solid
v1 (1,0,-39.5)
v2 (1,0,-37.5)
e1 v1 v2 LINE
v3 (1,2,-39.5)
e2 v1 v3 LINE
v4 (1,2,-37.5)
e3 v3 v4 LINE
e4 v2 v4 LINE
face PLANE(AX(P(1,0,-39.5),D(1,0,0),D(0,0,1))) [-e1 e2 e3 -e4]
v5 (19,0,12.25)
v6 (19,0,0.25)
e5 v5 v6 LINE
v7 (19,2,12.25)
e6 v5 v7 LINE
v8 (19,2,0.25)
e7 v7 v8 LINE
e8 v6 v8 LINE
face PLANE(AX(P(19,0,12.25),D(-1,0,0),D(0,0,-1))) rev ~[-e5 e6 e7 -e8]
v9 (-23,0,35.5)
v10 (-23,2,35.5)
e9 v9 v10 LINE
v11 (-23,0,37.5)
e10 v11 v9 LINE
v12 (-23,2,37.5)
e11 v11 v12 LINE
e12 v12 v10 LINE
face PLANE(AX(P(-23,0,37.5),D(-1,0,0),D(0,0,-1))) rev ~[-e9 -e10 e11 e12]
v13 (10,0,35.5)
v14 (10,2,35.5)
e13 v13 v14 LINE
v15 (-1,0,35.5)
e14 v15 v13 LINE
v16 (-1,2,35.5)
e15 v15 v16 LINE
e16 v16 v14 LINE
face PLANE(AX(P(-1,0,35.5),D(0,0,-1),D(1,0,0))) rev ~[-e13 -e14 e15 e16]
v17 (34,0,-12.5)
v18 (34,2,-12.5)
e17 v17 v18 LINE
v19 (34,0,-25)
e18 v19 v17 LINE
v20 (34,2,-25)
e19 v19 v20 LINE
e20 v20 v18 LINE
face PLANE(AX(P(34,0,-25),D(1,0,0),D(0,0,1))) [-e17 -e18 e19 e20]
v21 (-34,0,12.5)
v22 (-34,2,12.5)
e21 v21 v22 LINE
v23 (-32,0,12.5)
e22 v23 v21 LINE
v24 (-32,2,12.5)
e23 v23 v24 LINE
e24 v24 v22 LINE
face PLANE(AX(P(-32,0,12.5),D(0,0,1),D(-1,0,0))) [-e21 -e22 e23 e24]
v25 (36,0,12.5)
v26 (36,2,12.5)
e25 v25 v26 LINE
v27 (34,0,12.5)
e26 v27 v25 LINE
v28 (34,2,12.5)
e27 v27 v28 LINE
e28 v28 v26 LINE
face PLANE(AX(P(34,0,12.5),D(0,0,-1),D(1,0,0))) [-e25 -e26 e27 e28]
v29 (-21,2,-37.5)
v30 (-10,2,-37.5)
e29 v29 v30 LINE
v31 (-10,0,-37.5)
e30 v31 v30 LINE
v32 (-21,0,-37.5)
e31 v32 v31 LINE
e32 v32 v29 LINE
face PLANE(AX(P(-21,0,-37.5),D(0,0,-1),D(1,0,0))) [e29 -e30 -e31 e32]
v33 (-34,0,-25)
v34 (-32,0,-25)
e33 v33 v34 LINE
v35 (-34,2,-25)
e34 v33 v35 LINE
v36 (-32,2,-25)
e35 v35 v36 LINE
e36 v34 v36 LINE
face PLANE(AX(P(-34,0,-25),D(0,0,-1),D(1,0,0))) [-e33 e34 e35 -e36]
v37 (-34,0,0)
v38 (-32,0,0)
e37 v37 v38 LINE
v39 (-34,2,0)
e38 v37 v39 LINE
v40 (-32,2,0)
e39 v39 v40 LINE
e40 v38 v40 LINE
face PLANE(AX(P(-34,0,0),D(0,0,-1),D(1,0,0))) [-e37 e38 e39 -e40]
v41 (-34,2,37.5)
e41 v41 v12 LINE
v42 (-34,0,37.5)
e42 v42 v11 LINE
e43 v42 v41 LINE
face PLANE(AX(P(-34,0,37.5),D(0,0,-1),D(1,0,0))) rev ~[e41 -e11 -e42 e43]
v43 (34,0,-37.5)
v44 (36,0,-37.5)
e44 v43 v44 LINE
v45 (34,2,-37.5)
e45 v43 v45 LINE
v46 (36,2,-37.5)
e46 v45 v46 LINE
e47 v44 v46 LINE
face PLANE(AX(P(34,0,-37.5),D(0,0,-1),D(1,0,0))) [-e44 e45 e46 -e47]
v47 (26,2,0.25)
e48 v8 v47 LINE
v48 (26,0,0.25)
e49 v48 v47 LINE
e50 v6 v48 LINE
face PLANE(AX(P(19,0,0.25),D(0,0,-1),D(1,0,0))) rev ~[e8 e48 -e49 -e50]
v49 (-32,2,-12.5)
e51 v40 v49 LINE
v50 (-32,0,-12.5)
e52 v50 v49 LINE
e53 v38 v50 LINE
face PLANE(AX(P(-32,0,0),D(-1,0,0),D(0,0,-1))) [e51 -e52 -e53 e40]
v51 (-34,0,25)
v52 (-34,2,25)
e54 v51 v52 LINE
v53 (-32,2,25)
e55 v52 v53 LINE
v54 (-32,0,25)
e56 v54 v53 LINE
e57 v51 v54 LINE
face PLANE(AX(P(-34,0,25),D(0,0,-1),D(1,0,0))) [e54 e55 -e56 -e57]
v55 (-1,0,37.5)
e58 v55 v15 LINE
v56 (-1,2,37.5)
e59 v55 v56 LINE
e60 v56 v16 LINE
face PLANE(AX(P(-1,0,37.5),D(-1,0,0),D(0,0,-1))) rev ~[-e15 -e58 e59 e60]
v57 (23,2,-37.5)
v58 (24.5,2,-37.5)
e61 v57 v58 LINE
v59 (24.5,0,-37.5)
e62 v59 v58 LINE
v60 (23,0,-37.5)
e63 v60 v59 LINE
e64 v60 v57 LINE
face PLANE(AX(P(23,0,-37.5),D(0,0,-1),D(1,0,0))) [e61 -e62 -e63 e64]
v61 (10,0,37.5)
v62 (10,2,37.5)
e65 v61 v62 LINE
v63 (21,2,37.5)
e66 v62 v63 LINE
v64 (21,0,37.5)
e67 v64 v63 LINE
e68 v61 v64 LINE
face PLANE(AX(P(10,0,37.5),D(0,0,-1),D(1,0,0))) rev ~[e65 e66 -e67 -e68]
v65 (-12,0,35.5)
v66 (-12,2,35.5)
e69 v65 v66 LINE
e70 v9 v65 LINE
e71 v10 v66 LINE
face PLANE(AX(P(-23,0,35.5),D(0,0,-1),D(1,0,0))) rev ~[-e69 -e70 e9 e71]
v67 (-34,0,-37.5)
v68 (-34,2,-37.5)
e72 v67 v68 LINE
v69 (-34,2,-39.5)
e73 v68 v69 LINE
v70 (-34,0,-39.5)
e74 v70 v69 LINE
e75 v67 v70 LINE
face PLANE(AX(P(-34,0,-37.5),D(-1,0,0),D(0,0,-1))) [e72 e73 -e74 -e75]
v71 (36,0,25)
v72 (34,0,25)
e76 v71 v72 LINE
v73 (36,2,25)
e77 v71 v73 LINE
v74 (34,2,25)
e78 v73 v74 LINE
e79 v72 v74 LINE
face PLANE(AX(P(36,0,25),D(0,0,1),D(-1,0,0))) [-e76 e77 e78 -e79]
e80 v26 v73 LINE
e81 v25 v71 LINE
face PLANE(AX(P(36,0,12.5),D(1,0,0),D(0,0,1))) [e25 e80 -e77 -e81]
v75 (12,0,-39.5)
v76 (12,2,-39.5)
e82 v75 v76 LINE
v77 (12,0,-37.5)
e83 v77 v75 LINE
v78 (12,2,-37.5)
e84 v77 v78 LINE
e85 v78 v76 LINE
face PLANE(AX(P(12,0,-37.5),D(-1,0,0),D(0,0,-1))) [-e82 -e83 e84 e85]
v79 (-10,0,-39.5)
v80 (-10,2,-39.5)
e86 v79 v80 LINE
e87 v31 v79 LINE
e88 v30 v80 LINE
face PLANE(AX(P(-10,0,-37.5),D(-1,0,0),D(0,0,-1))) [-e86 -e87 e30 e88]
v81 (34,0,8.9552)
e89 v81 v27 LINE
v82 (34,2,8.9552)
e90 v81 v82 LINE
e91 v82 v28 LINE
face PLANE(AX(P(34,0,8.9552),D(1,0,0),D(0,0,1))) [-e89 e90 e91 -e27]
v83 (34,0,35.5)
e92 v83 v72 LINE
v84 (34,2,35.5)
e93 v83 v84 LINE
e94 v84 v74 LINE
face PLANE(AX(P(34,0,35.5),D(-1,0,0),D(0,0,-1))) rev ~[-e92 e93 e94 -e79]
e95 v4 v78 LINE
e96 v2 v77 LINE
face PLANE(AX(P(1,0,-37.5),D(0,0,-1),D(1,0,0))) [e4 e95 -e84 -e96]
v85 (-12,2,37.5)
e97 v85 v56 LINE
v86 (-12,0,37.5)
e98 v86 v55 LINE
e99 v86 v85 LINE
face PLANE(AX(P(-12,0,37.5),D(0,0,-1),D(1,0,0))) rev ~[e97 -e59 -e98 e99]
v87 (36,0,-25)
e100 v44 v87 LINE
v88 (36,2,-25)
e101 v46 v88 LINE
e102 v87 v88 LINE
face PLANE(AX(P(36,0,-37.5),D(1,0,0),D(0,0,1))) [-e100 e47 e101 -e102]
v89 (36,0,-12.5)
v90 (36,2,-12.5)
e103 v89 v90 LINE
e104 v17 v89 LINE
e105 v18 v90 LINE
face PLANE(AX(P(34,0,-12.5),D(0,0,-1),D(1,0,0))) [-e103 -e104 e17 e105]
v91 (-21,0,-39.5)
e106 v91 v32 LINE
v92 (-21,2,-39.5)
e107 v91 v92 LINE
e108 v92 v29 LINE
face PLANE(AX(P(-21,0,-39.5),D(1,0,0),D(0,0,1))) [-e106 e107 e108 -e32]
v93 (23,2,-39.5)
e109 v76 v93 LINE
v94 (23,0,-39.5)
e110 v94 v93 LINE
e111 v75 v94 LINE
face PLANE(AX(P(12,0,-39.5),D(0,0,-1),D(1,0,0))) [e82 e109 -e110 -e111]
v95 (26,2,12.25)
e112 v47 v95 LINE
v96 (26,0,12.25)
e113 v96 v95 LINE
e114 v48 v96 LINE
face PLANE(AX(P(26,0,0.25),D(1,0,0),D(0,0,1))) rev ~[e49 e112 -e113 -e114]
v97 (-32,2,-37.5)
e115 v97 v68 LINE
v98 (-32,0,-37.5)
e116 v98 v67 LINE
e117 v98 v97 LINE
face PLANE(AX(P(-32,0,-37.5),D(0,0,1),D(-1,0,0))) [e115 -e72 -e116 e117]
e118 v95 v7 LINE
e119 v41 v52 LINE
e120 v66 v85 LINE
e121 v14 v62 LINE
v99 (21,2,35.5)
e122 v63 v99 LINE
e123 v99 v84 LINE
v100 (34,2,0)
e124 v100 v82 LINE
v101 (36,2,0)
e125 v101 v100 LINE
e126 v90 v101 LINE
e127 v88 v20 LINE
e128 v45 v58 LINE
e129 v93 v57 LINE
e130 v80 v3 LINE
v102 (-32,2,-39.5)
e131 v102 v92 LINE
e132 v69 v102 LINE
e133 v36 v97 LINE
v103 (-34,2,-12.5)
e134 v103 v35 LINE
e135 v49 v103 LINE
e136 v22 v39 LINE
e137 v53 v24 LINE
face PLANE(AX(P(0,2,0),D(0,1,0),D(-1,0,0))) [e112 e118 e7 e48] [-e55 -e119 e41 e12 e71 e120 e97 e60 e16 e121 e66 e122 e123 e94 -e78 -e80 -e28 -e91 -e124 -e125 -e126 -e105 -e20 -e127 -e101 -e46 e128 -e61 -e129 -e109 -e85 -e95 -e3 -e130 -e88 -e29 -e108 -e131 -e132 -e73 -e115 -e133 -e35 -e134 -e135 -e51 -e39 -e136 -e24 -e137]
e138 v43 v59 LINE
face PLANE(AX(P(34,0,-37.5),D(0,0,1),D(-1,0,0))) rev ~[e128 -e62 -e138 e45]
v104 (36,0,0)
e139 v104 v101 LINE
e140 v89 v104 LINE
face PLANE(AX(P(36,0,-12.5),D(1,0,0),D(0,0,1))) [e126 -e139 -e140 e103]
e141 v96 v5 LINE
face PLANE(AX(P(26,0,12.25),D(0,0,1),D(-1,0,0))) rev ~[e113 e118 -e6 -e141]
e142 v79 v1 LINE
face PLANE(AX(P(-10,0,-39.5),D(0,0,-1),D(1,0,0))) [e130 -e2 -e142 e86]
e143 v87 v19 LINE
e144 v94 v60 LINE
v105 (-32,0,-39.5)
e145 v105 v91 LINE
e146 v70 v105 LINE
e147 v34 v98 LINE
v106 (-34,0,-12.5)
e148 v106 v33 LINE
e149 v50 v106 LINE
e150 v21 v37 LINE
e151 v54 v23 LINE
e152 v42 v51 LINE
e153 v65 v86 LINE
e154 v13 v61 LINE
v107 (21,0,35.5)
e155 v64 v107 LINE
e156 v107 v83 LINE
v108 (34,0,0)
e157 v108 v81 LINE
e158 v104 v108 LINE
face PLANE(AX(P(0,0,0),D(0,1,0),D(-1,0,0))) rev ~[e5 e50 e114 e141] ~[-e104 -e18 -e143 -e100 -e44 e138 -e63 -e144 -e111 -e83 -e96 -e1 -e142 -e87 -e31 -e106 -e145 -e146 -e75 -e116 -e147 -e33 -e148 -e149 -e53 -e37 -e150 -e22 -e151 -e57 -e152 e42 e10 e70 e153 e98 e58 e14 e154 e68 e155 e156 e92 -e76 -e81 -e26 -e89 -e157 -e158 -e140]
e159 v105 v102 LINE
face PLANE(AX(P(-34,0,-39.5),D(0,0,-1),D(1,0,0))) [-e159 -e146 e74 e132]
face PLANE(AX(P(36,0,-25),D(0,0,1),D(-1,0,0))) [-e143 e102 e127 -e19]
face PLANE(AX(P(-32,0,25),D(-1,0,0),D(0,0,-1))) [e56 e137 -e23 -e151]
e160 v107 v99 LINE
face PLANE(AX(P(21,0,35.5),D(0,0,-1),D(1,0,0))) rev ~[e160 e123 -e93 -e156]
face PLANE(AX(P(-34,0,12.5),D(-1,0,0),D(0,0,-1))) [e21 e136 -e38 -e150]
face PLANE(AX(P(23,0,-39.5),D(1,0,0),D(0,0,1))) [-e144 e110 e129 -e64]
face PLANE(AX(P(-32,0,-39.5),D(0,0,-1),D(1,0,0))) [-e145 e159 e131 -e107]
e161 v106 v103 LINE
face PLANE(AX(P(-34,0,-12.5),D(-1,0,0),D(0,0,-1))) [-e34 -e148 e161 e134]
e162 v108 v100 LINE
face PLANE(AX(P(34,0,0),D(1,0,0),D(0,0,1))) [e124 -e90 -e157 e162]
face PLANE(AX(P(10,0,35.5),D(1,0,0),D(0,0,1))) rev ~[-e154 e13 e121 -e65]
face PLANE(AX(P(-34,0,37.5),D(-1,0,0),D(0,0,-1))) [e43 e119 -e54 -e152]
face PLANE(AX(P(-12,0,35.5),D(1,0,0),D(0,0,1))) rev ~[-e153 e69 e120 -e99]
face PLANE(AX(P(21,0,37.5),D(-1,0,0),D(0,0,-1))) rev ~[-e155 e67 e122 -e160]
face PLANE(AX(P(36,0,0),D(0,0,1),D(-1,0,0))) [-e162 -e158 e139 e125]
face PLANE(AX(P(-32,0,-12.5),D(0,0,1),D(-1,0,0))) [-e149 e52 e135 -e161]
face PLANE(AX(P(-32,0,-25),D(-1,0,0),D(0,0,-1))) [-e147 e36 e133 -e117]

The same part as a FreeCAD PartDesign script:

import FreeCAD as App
import Part
import Sketcher

V = App.Vector
Q = App.Units.Quantity


def add_polygon(sketch, points):
    """Adds a closed chain of lines whose ends are joined by coincident constraints."""
    first, n = sketch.GeometryCount, len(points)
    for a, b in zip(points, points[1:] + points[:1]):
        sketch.addGeometry(Part.LineSegment(App.Vector(*a, 0), App.Vector(*b, 0)), False)
    for i in range(n):
        sketch.addConstraint(Sketcher.Constraint("Coincident", first + i, 2, first + (i + 1) % n, 1))

doc = App.newDocument("Part")
body = doc.addObject("PartDesign::Body", "Body")

# Sketch on XZ plane
sketch1 = body.newObject("Sketcher::SketchObject", "Sketch")
sketch1.AttachmentSupport = (doc.getObject("XZ_Plane"), [""])
sketch1.MapMode = "FlatFace"
add_polygon(sketch1, [(-34, 25), (-34, 37.5), (-23, 37.5), (-23, 35.5), (-12, 35.5), (-12, 37.5), (-1, 37.5), (-1, 35.5), (10, 35.5), (10, 37.5), (21, 37.5), (21, 35.5), (34, 35.5), (34, 25), (36, 25), (36, 12.5), (34, 12.5), (34, 0), (36, 0), (36, -12.5), (34, -12.5), (34, -25), (36, -25), (36, -37.5), (23, -37.5), (23, -39.5), (12, -39.5), (12, -37.5), (1, -37.5), (1, -39.5), (-10, -39.5), (-10, -37.5), (-21, -37.5), (-21, -39.5), (-34, -39.5), (-34, -37.5), (-32, -37.5), (-32, -25), (-34, -25), (-34, -12.5), (-32, -12.5), (-32, 0), (-34, 0), (-34, 12.5), (-32, 12.5), (-32, 25)])  # lines 0-45
add_polygon(sketch1, [(26, 0.2), (26, 12.2), (19, 12.2), (19, 0.2)])  # lines 46-49
sketch1.addConstraint([
    Sketcher.Constraint("Vertical", 0),
    Sketcher.Constraint("Horizontal", 1),
    Sketcher.Constraint("Vertical", 2),
    Sketcher.Constraint("Horizontal", 3),
    Sketcher.Constraint("Vertical", 4),
    Sketcher.Constraint("Horizontal", 5),
    Sketcher.Constraint("Vertical", 6),
    Sketcher.Constraint("Horizontal", 7),
    Sketcher.Constraint("Vertical", 8),
    Sketcher.Constraint("Horizontal", 9),
    Sketcher.Constraint("Vertical", 10),
    Sketcher.Constraint("Horizontal", 11),
    Sketcher.Constraint("Vertical", 12),
    Sketcher.Constraint("Horizontal", 13),
    Sketcher.Constraint("Vertical", 14),
    Sketcher.Constraint("Horizontal", 15),
    Sketcher.Constraint("Vertical", 16),
    Sketcher.Constraint("Horizontal", 17),
    Sketcher.Constraint("Vertical", 18),
    Sketcher.Constraint("Horizontal", 19),
    Sketcher.Constraint("Vertical", 20),
    Sketcher.Constraint("Horizontal", 21),
    Sketcher.Constraint("Vertical", 22),
    Sketcher.Constraint("Horizontal", 23),
    Sketcher.Constraint("Vertical", 24),
    Sketcher.Constraint("Horizontal", 25),
    Sketcher.Constraint("Vertical", 26),
    Sketcher.Constraint("Horizontal", 27),
    Sketcher.Constraint("Vertical", 28),
    Sketcher.Constraint("Horizontal", 29),
    Sketcher.Constraint("Vertical", 30),
    Sketcher.Constraint("Horizontal", 31),
    Sketcher.Constraint("Vertical", 32),
    Sketcher.Constraint("Horizontal", 33),
    Sketcher.Constraint("Vertical", 34),
    Sketcher.Constraint("Horizontal", 35),
    Sketcher.Constraint("Vertical", 36),
    Sketcher.Constraint("Horizontal", 37),
    Sketcher.Constraint("Vertical", 38),
    Sketcher.Constraint("Horizontal", 39),
    Sketcher.Constraint("Vertical", 40),
    Sketcher.Constraint("Horizontal", 41),
    Sketcher.Constraint("Vertical", 42),
    Sketcher.Constraint("Horizontal", 43),
    Sketcher.Constraint("Vertical", 44),
    Sketcher.Constraint("Horizontal", 45),
    Sketcher.Constraint("Vertical", 46),
    Sketcher.Constraint("Horizontal", 47),
    Sketcher.Constraint("Vertical", 48),
    Sketcher.Constraint("Horizontal", 49),
    Sketcher.Constraint("Symmetric", 1, 2, 23, 2, -1, 1),
    Sketcher.Constraint("Symmetric", 4, 2, 26, 2, -1, 1),
    Sketcher.Constraint("Symmetric", 8, 2, 30, 2, -1, 1),
    Sketcher.Constraint("Symmetric", 12, 2, 37, 2, -1, 1),
    Sketcher.Constraint("Symmetric", 15, 2, 38, 2, -1, 1),
    Sketcher.Constraint("Symmetric", 16, 2, 41, 2, -1, 1),
    Sketcher.Constraint("Symmetric", 19, 2, 42, 2, -1, 1),
    Sketcher.Constraint("Symmetric", 20, 2, 45, 2, -1, 1),
    Sketcher.Constraint("Symmetric", 14, 2, 18, 2, -1),
    Sketcher.Constraint("Symmetric", 13, 2, 21, 2, -1),
    Sketcher.Constraint("Symmetric", 0, 2, 34, 2, -1),
    Sketcher.Constraint("PointOnObject", 16, 2, -1),
    Sketcher.Constraint("Horizontal", 1, 2, 4, 2),
    Sketcher.Constraint("Horizontal", 3, 2, 6, 2),
    Sketcher.Constraint("Horizontal", 5, 2, 8, 2),
    Sketcher.Constraint("Horizontal", 7, 2, 10, 2),
    Sketcher.Constraint("Horizontal", 25, 2, 28, 2),
    Sketcher.Constraint("Horizontal", 29, 2, 32, 2),
    Sketcher.Constraint("Vertical", 36, 2, 39, 2),
    Sketcher.Constraint("Vertical", 40, 2, 43, 2),
    Sketcher.Constraint("Equal", 1, 3),
    Sketcher.Constraint("Equal", 3, 5),
    Sketcher.Constraint("Equal", 5, 7),
    Sketcher.Constraint("Equal", 7, 9),
    Sketcher.Constraint("Equal", 11, 23),
    Sketcher.Constraint("Equal", 25, 27),
    Sketcher.Constraint("Equal", 29, 31),
    Sketcher.Constraint("Equal", 21, 35),
    Sketcher.Constraint("Equal", 45, 2),
    Sketcher.Constraint("Equal", 0, 14),
    Sketcher.Constraint("Equal", 14, 16),
    Sketcher.Constraint("Equal", 10, 24),
    Sketcher.Constraint("DistanceX", 1, 1, 1, 2, Q("11 mm")),
    Sketcher.Constraint("DistanceX", 11, 1, 11, 2, Q("13 mm")),
    Sketcher.Constraint("DistanceX", 47, 2, 47, 1, Q("7 mm")),
    Sketcher.Constraint("DistanceY", 46, 1, 46, 2, Q("12 mm")),
    Sketcher.Constraint("DistanceY", 0, 1, 0, 2, Q("12.5 mm")),
    Sketcher.Constraint("DistanceX", -1, 1, 46, 2, Q("26 mm")),
    Sketcher.Constraint("DistanceY", -1, 1, 46, 2, Q("12.25 mm")),
])
pad1 = body.newObject("PartDesign::Pad", "Pad")
pad1.Profile = sketch1
pad1.Length = 2
pad1.Reversed = True

doc.recompute()
